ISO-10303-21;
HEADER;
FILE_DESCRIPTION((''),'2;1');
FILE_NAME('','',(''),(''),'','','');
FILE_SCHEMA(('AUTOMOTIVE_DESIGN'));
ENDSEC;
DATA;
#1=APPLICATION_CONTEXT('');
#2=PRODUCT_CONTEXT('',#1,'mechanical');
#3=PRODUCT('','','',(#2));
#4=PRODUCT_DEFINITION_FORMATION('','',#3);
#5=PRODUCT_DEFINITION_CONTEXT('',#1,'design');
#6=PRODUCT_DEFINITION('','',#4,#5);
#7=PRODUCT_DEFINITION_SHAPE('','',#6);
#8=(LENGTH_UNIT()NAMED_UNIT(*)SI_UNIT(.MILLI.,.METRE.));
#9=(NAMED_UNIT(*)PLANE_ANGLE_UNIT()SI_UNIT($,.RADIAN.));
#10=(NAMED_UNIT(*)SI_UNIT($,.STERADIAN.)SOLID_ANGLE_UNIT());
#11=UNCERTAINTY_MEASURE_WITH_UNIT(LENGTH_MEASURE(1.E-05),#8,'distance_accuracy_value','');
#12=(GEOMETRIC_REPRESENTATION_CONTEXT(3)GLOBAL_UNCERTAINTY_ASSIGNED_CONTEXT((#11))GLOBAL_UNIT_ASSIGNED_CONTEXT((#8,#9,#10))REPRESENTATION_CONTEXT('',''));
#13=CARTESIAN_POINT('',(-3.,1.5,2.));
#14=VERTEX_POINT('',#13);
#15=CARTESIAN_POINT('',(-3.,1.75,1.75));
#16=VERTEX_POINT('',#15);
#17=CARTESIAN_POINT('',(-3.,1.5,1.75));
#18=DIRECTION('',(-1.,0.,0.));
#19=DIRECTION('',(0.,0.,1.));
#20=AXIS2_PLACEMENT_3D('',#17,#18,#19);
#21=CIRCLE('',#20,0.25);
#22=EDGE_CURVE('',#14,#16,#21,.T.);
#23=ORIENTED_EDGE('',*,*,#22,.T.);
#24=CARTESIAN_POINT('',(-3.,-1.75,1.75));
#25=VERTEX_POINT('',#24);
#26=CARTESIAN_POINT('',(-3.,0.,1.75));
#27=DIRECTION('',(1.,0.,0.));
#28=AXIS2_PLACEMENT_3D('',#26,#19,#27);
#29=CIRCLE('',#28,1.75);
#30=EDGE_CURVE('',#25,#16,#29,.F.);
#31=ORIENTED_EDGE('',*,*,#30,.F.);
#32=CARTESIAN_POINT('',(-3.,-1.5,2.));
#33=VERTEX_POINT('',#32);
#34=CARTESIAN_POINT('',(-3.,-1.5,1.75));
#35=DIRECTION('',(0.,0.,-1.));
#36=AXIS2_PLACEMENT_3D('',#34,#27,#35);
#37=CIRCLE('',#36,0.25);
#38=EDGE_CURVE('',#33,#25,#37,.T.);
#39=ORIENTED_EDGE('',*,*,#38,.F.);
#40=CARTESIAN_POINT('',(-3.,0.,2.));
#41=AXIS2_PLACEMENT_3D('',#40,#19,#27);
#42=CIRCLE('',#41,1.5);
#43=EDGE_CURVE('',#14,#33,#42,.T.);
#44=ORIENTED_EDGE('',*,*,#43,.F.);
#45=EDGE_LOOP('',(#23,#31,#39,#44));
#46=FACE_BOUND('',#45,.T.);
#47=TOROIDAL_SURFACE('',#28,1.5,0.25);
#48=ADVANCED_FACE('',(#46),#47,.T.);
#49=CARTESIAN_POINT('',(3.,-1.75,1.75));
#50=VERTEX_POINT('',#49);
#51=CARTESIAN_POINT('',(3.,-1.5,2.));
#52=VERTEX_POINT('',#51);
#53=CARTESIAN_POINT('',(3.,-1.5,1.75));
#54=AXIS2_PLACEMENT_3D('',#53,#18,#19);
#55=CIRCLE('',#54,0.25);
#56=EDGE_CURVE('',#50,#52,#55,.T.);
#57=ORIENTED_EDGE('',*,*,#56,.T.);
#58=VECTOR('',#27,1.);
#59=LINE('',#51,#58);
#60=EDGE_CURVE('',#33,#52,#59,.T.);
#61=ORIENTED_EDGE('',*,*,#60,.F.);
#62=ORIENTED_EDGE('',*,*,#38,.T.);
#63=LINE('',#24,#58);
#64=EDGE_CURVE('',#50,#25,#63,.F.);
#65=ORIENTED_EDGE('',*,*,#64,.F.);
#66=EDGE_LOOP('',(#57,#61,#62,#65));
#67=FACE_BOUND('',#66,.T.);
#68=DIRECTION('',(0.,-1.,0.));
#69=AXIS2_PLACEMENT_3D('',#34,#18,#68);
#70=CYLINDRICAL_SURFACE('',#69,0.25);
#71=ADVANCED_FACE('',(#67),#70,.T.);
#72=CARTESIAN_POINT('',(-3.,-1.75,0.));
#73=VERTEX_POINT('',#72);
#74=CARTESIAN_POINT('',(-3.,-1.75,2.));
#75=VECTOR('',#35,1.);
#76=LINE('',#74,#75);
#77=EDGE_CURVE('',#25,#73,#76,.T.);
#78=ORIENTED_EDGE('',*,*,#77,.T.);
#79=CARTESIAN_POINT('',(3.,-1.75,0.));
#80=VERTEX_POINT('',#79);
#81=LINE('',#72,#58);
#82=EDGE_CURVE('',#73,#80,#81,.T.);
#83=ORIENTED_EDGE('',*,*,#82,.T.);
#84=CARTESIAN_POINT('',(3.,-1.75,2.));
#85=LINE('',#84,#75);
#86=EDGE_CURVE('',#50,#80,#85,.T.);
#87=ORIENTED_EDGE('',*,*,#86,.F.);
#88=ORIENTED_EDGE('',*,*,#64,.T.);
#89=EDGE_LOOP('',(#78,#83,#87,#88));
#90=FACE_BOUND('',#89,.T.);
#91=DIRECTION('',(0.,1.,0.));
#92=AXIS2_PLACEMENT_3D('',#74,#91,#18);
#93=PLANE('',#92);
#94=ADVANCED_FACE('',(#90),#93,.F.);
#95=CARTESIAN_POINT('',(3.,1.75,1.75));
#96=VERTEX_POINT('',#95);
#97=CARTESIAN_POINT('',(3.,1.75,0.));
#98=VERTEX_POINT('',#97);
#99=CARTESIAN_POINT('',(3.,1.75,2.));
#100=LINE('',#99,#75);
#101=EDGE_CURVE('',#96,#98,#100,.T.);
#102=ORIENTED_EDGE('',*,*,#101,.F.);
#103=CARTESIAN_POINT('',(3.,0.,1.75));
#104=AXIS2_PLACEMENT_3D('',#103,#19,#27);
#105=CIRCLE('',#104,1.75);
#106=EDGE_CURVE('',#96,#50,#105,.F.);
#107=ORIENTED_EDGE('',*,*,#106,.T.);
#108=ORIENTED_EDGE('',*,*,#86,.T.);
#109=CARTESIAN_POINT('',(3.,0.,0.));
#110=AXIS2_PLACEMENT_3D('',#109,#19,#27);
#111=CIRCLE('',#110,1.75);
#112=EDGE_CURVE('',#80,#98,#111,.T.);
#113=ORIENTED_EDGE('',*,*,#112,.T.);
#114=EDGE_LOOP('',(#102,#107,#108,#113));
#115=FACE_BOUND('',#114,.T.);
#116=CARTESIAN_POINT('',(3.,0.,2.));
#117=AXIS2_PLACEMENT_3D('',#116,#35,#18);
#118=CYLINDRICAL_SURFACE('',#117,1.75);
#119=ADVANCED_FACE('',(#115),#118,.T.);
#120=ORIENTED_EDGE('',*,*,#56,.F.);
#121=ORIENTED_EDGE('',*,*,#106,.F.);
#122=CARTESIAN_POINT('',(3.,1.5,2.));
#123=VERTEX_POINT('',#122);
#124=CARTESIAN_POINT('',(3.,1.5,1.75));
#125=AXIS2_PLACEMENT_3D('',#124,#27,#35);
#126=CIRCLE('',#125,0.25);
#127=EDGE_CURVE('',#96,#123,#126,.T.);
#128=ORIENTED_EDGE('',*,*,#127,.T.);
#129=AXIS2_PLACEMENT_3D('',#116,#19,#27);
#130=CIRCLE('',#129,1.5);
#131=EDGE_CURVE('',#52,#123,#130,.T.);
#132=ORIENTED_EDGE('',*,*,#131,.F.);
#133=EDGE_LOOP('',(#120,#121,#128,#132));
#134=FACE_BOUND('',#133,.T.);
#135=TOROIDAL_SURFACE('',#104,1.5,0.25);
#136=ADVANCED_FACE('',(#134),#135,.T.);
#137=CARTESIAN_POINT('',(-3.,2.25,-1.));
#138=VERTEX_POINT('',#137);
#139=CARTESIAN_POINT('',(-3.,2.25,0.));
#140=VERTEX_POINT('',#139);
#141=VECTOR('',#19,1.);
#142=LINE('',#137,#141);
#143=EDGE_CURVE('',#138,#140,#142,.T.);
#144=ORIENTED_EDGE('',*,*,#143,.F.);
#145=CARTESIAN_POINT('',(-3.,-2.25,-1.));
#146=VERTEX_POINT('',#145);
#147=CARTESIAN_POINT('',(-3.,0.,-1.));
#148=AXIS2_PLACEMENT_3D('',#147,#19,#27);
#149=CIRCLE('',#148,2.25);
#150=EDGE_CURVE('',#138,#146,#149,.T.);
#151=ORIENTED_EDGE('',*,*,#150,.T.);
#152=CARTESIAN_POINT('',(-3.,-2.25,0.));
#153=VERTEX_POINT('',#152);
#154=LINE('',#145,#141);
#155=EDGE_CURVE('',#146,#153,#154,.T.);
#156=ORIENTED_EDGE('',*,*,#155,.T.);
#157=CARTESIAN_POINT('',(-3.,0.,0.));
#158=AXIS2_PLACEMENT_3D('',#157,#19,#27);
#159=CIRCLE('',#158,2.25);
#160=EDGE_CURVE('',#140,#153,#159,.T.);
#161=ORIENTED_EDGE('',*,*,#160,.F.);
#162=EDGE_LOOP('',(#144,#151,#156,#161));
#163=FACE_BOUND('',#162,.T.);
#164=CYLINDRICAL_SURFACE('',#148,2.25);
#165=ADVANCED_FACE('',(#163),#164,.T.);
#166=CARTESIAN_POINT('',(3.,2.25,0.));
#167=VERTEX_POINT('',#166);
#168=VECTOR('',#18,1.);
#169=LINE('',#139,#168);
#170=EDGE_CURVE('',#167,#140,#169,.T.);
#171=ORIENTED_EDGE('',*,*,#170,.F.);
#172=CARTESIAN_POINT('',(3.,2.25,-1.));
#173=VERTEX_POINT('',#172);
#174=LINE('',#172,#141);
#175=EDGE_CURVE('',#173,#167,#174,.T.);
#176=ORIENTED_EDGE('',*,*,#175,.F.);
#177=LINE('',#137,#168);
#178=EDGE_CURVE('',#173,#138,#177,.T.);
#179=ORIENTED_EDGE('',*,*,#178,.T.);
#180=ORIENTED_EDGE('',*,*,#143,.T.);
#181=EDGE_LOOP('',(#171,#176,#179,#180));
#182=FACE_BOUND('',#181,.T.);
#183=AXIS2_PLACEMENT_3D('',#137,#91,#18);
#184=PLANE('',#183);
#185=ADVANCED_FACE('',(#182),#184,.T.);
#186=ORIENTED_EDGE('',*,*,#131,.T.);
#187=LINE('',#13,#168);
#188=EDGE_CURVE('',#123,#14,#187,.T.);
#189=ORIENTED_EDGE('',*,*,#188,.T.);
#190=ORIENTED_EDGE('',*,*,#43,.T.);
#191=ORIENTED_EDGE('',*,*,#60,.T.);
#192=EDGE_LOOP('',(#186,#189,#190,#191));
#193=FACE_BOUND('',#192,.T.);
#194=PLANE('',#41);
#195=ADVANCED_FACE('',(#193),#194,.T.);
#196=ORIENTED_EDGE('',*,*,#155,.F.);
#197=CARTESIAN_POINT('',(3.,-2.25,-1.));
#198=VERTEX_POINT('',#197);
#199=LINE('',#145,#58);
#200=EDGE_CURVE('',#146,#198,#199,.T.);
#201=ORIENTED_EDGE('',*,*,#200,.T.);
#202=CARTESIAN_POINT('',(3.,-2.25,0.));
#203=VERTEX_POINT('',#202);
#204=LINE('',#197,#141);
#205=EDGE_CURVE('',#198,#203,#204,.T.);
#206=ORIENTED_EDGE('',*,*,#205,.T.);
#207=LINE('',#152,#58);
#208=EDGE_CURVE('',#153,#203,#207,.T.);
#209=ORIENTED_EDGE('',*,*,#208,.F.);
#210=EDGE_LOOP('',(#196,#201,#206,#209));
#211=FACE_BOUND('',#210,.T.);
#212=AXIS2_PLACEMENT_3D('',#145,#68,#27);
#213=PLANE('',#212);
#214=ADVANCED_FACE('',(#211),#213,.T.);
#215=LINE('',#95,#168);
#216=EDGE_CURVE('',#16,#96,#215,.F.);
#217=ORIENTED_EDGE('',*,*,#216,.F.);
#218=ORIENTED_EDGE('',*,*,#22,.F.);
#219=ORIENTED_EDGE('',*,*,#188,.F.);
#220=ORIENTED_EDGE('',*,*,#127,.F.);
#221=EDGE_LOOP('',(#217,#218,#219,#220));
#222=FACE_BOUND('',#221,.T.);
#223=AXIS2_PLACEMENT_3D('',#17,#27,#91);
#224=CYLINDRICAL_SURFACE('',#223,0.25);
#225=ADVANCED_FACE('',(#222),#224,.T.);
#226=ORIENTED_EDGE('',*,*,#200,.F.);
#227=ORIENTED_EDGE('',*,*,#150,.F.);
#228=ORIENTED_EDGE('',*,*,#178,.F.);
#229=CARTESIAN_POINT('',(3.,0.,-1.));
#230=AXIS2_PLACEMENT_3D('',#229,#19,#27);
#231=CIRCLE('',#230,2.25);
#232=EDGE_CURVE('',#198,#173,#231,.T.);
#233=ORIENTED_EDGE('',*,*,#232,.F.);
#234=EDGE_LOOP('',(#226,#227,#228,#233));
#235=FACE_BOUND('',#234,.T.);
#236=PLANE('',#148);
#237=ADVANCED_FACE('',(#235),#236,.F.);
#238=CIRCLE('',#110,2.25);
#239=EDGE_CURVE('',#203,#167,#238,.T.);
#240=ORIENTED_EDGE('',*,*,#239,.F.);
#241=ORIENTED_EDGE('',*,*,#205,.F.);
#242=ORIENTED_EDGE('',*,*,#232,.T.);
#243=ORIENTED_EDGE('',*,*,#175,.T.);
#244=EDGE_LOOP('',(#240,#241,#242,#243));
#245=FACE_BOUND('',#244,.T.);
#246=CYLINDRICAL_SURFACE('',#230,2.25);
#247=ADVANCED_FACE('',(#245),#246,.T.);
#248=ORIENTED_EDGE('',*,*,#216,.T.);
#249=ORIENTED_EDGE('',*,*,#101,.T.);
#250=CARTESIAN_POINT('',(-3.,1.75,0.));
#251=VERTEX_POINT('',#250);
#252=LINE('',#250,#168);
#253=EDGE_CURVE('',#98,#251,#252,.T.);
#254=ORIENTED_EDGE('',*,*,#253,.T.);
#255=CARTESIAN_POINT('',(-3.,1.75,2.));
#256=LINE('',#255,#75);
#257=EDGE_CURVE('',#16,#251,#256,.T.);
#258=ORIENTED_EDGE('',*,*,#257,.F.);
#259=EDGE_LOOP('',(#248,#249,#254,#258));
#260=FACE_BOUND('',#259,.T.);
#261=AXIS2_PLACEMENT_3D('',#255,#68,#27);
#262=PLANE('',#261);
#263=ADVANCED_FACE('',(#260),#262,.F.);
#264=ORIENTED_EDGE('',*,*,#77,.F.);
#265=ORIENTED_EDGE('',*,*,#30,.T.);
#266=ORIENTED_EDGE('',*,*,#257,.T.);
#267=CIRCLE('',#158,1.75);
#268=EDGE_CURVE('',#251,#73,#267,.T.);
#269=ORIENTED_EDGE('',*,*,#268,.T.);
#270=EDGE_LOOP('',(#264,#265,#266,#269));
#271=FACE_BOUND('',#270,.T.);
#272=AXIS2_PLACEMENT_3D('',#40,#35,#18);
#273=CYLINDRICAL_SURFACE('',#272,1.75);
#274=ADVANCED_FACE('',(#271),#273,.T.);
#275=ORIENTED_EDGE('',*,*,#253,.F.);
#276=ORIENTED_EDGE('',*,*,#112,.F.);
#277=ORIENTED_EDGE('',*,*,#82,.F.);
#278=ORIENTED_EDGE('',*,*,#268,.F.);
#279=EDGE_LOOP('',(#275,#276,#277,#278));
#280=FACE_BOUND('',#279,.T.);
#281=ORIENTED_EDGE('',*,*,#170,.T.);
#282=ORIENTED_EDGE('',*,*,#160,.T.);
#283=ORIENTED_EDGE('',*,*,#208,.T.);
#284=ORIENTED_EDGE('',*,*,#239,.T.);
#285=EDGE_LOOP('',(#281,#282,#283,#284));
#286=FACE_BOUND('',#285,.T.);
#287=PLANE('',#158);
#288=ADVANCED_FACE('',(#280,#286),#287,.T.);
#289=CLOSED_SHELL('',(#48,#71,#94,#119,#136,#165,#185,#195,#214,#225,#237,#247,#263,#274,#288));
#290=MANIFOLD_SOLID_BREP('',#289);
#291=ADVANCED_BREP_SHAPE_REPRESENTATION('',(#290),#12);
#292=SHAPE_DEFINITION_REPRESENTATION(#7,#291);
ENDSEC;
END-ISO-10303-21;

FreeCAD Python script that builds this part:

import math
import FreeCAD as App
import Part
import Sketcher

V = App.Vector
Q = App.Units.Quantity


def edges_at(feature, points):
    """Names of the edges that pass closest to the given points."""
    edges = feature.Shape.Edges
    near = lambda p: min(range(len(edges)), key=lambda i: edges[i].distToShape(Part.Vertex(*p))[0])
    return sorted({f"Edge{near(p) + 1}" for p in points})

doc = App.newDocument("Part")
body = doc.addObject("PartDesign::Body", "Body")

# Sketch on XY plane
sketch1 = doc.addObject("Sketcher::SketchObject", "Sketch")
body.addObject(sketch1)
sketch1.AttachmentSupport = (doc.XY_Plane, [""])
sketch1.MapMode = "FlatFace"
sketch1.addGeometry(Part.LineSegment(V(3, 1.8, 0), V(-3, 1.8, 0)), False)
sketch1.addGeometry(Part.ArcOfCircle(Part.Circle(V(-3, 0, 0), V(0, 0, 1), 1.8), math.radians(90), math.radians(270)), False)
sketch1.addGeometry(Part.LineSegment(V(-3, -1.8, 0), V(3, -1.8, 0)), False)
sketch1.addGeometry(Part.ArcOfCircle(Part.Circle(V(3, 0, 0), V(0, 0, 1), 1.8), math.radians(-90), math.radians(90)), False)
sketch1.addConstraint(Sketcher.Constraint("Tangent", 0, 2, 1, 1))
sketch1.addConstraint(Sketcher.Constraint("Tangent", 1, 2, 2, 1))
sketch1.addConstraint(Sketcher.Constraint("Tangent", 2, 2, 3, 1))
sketch1.addConstraint(Sketcher.Constraint("Tangent", 3, 2, 0, 1))
sketch1.addConstraint(Sketcher.Constraint("Horizontal", 0))
sketch1.addConstraint(Sketcher.Constraint("Horizontal", 2))
sketch1.addConstraint(Sketcher.Constraint("Symmetric", 1, 3, 3, 3, -1, 1))
sketch1.addConstraint(Sketcher.Constraint("DistanceX", 0, 2, 0, 1, Q("6 mm")))
sketch1.addConstraint(Sketcher.Constraint("Radius", 1, Q("1.75 mm")))
pad1 = doc.addObject("PartDesign::Pad", "Pad")
body.addObject(pad1)
pad1.Profile = sketch1
pad1.Length = 2

# Sketch on XY plane
sketch2 = doc.addObject("Sketcher::SketchObject", "Sketch001")
body.addObject(sketch2)
sketch2.AttachmentSupport = (doc.XY_Plane, [""])
sketch2.MapMode = "FlatFace"
sketch2.addGeometry(Part.LineSegment(V(3, 2.2, 0), V(-3, 2.2, 0)), False)
sketch2.addGeometry(Part.ArcOfCircle(Part.Circle(V(-3, 0, 0), V(0, 0, 1), 2.2), math.radians(90), math.radians(270)), False)
sketch2.addGeometry(Part.LineSegment(V(-3, -2.2, 0), V(3, -2.2, 0)), False)
sketch2.addGeometry(Part.ArcOfCircle(Part.Circle(V(3, 0, 0), V(0, 0, 1), 2.2), math.radians(-90), math.radians(90)), False)
sketch2.addConstraint(Sketcher.Constraint("Tangent", 0, 2, 1, 1))
sketch2.addConstraint(Sketcher.Constraint("Tangent", 1, 2, 2, 1))
sketch2.addConstraint(Sketcher.Constraint("Tangent", 2, 2, 3, 1))
sketch2.addConstraint(Sketcher.Constraint("Tangent", 3, 2, 0, 1))
sketch2.addConstraint(Sketcher.Constraint("Horizontal", 0))
sketch2.addConstraint(Sketcher.Constraint("Horizontal", 2))
sketch2.addConstraint(Sketcher.Constraint("Symmetric", 1, 3, 3, 3, -1, 1))
sketch2.addConstraint(Sketcher.Constraint("DistanceX", 0, 2, 0, 1, Q("6 mm")))
sketch2.addConstraint(Sketcher.Constraint("Radius", 1, Q("2.25 mm")))
pad2 = doc.addObject("PartDesign::Pad", "Pad001")
body.addObject(pad2)
pad2.Profile = sketch2
pad2.Length = 1
pad2.Reversed = True
doc.recompute()

fillet = doc.addObject("PartDesign::Fillet", "Fillet")
body.addObject(fillet)
fillet.Base = (pad2, edges_at(pad2, [
    (4.75, 0, 2),
    (0, 1.75, 2),
    (-4.75, 0, 2),
    (0, -1.75, 2),
]))
fillet.Radius = 0.25

doc.recompute()
